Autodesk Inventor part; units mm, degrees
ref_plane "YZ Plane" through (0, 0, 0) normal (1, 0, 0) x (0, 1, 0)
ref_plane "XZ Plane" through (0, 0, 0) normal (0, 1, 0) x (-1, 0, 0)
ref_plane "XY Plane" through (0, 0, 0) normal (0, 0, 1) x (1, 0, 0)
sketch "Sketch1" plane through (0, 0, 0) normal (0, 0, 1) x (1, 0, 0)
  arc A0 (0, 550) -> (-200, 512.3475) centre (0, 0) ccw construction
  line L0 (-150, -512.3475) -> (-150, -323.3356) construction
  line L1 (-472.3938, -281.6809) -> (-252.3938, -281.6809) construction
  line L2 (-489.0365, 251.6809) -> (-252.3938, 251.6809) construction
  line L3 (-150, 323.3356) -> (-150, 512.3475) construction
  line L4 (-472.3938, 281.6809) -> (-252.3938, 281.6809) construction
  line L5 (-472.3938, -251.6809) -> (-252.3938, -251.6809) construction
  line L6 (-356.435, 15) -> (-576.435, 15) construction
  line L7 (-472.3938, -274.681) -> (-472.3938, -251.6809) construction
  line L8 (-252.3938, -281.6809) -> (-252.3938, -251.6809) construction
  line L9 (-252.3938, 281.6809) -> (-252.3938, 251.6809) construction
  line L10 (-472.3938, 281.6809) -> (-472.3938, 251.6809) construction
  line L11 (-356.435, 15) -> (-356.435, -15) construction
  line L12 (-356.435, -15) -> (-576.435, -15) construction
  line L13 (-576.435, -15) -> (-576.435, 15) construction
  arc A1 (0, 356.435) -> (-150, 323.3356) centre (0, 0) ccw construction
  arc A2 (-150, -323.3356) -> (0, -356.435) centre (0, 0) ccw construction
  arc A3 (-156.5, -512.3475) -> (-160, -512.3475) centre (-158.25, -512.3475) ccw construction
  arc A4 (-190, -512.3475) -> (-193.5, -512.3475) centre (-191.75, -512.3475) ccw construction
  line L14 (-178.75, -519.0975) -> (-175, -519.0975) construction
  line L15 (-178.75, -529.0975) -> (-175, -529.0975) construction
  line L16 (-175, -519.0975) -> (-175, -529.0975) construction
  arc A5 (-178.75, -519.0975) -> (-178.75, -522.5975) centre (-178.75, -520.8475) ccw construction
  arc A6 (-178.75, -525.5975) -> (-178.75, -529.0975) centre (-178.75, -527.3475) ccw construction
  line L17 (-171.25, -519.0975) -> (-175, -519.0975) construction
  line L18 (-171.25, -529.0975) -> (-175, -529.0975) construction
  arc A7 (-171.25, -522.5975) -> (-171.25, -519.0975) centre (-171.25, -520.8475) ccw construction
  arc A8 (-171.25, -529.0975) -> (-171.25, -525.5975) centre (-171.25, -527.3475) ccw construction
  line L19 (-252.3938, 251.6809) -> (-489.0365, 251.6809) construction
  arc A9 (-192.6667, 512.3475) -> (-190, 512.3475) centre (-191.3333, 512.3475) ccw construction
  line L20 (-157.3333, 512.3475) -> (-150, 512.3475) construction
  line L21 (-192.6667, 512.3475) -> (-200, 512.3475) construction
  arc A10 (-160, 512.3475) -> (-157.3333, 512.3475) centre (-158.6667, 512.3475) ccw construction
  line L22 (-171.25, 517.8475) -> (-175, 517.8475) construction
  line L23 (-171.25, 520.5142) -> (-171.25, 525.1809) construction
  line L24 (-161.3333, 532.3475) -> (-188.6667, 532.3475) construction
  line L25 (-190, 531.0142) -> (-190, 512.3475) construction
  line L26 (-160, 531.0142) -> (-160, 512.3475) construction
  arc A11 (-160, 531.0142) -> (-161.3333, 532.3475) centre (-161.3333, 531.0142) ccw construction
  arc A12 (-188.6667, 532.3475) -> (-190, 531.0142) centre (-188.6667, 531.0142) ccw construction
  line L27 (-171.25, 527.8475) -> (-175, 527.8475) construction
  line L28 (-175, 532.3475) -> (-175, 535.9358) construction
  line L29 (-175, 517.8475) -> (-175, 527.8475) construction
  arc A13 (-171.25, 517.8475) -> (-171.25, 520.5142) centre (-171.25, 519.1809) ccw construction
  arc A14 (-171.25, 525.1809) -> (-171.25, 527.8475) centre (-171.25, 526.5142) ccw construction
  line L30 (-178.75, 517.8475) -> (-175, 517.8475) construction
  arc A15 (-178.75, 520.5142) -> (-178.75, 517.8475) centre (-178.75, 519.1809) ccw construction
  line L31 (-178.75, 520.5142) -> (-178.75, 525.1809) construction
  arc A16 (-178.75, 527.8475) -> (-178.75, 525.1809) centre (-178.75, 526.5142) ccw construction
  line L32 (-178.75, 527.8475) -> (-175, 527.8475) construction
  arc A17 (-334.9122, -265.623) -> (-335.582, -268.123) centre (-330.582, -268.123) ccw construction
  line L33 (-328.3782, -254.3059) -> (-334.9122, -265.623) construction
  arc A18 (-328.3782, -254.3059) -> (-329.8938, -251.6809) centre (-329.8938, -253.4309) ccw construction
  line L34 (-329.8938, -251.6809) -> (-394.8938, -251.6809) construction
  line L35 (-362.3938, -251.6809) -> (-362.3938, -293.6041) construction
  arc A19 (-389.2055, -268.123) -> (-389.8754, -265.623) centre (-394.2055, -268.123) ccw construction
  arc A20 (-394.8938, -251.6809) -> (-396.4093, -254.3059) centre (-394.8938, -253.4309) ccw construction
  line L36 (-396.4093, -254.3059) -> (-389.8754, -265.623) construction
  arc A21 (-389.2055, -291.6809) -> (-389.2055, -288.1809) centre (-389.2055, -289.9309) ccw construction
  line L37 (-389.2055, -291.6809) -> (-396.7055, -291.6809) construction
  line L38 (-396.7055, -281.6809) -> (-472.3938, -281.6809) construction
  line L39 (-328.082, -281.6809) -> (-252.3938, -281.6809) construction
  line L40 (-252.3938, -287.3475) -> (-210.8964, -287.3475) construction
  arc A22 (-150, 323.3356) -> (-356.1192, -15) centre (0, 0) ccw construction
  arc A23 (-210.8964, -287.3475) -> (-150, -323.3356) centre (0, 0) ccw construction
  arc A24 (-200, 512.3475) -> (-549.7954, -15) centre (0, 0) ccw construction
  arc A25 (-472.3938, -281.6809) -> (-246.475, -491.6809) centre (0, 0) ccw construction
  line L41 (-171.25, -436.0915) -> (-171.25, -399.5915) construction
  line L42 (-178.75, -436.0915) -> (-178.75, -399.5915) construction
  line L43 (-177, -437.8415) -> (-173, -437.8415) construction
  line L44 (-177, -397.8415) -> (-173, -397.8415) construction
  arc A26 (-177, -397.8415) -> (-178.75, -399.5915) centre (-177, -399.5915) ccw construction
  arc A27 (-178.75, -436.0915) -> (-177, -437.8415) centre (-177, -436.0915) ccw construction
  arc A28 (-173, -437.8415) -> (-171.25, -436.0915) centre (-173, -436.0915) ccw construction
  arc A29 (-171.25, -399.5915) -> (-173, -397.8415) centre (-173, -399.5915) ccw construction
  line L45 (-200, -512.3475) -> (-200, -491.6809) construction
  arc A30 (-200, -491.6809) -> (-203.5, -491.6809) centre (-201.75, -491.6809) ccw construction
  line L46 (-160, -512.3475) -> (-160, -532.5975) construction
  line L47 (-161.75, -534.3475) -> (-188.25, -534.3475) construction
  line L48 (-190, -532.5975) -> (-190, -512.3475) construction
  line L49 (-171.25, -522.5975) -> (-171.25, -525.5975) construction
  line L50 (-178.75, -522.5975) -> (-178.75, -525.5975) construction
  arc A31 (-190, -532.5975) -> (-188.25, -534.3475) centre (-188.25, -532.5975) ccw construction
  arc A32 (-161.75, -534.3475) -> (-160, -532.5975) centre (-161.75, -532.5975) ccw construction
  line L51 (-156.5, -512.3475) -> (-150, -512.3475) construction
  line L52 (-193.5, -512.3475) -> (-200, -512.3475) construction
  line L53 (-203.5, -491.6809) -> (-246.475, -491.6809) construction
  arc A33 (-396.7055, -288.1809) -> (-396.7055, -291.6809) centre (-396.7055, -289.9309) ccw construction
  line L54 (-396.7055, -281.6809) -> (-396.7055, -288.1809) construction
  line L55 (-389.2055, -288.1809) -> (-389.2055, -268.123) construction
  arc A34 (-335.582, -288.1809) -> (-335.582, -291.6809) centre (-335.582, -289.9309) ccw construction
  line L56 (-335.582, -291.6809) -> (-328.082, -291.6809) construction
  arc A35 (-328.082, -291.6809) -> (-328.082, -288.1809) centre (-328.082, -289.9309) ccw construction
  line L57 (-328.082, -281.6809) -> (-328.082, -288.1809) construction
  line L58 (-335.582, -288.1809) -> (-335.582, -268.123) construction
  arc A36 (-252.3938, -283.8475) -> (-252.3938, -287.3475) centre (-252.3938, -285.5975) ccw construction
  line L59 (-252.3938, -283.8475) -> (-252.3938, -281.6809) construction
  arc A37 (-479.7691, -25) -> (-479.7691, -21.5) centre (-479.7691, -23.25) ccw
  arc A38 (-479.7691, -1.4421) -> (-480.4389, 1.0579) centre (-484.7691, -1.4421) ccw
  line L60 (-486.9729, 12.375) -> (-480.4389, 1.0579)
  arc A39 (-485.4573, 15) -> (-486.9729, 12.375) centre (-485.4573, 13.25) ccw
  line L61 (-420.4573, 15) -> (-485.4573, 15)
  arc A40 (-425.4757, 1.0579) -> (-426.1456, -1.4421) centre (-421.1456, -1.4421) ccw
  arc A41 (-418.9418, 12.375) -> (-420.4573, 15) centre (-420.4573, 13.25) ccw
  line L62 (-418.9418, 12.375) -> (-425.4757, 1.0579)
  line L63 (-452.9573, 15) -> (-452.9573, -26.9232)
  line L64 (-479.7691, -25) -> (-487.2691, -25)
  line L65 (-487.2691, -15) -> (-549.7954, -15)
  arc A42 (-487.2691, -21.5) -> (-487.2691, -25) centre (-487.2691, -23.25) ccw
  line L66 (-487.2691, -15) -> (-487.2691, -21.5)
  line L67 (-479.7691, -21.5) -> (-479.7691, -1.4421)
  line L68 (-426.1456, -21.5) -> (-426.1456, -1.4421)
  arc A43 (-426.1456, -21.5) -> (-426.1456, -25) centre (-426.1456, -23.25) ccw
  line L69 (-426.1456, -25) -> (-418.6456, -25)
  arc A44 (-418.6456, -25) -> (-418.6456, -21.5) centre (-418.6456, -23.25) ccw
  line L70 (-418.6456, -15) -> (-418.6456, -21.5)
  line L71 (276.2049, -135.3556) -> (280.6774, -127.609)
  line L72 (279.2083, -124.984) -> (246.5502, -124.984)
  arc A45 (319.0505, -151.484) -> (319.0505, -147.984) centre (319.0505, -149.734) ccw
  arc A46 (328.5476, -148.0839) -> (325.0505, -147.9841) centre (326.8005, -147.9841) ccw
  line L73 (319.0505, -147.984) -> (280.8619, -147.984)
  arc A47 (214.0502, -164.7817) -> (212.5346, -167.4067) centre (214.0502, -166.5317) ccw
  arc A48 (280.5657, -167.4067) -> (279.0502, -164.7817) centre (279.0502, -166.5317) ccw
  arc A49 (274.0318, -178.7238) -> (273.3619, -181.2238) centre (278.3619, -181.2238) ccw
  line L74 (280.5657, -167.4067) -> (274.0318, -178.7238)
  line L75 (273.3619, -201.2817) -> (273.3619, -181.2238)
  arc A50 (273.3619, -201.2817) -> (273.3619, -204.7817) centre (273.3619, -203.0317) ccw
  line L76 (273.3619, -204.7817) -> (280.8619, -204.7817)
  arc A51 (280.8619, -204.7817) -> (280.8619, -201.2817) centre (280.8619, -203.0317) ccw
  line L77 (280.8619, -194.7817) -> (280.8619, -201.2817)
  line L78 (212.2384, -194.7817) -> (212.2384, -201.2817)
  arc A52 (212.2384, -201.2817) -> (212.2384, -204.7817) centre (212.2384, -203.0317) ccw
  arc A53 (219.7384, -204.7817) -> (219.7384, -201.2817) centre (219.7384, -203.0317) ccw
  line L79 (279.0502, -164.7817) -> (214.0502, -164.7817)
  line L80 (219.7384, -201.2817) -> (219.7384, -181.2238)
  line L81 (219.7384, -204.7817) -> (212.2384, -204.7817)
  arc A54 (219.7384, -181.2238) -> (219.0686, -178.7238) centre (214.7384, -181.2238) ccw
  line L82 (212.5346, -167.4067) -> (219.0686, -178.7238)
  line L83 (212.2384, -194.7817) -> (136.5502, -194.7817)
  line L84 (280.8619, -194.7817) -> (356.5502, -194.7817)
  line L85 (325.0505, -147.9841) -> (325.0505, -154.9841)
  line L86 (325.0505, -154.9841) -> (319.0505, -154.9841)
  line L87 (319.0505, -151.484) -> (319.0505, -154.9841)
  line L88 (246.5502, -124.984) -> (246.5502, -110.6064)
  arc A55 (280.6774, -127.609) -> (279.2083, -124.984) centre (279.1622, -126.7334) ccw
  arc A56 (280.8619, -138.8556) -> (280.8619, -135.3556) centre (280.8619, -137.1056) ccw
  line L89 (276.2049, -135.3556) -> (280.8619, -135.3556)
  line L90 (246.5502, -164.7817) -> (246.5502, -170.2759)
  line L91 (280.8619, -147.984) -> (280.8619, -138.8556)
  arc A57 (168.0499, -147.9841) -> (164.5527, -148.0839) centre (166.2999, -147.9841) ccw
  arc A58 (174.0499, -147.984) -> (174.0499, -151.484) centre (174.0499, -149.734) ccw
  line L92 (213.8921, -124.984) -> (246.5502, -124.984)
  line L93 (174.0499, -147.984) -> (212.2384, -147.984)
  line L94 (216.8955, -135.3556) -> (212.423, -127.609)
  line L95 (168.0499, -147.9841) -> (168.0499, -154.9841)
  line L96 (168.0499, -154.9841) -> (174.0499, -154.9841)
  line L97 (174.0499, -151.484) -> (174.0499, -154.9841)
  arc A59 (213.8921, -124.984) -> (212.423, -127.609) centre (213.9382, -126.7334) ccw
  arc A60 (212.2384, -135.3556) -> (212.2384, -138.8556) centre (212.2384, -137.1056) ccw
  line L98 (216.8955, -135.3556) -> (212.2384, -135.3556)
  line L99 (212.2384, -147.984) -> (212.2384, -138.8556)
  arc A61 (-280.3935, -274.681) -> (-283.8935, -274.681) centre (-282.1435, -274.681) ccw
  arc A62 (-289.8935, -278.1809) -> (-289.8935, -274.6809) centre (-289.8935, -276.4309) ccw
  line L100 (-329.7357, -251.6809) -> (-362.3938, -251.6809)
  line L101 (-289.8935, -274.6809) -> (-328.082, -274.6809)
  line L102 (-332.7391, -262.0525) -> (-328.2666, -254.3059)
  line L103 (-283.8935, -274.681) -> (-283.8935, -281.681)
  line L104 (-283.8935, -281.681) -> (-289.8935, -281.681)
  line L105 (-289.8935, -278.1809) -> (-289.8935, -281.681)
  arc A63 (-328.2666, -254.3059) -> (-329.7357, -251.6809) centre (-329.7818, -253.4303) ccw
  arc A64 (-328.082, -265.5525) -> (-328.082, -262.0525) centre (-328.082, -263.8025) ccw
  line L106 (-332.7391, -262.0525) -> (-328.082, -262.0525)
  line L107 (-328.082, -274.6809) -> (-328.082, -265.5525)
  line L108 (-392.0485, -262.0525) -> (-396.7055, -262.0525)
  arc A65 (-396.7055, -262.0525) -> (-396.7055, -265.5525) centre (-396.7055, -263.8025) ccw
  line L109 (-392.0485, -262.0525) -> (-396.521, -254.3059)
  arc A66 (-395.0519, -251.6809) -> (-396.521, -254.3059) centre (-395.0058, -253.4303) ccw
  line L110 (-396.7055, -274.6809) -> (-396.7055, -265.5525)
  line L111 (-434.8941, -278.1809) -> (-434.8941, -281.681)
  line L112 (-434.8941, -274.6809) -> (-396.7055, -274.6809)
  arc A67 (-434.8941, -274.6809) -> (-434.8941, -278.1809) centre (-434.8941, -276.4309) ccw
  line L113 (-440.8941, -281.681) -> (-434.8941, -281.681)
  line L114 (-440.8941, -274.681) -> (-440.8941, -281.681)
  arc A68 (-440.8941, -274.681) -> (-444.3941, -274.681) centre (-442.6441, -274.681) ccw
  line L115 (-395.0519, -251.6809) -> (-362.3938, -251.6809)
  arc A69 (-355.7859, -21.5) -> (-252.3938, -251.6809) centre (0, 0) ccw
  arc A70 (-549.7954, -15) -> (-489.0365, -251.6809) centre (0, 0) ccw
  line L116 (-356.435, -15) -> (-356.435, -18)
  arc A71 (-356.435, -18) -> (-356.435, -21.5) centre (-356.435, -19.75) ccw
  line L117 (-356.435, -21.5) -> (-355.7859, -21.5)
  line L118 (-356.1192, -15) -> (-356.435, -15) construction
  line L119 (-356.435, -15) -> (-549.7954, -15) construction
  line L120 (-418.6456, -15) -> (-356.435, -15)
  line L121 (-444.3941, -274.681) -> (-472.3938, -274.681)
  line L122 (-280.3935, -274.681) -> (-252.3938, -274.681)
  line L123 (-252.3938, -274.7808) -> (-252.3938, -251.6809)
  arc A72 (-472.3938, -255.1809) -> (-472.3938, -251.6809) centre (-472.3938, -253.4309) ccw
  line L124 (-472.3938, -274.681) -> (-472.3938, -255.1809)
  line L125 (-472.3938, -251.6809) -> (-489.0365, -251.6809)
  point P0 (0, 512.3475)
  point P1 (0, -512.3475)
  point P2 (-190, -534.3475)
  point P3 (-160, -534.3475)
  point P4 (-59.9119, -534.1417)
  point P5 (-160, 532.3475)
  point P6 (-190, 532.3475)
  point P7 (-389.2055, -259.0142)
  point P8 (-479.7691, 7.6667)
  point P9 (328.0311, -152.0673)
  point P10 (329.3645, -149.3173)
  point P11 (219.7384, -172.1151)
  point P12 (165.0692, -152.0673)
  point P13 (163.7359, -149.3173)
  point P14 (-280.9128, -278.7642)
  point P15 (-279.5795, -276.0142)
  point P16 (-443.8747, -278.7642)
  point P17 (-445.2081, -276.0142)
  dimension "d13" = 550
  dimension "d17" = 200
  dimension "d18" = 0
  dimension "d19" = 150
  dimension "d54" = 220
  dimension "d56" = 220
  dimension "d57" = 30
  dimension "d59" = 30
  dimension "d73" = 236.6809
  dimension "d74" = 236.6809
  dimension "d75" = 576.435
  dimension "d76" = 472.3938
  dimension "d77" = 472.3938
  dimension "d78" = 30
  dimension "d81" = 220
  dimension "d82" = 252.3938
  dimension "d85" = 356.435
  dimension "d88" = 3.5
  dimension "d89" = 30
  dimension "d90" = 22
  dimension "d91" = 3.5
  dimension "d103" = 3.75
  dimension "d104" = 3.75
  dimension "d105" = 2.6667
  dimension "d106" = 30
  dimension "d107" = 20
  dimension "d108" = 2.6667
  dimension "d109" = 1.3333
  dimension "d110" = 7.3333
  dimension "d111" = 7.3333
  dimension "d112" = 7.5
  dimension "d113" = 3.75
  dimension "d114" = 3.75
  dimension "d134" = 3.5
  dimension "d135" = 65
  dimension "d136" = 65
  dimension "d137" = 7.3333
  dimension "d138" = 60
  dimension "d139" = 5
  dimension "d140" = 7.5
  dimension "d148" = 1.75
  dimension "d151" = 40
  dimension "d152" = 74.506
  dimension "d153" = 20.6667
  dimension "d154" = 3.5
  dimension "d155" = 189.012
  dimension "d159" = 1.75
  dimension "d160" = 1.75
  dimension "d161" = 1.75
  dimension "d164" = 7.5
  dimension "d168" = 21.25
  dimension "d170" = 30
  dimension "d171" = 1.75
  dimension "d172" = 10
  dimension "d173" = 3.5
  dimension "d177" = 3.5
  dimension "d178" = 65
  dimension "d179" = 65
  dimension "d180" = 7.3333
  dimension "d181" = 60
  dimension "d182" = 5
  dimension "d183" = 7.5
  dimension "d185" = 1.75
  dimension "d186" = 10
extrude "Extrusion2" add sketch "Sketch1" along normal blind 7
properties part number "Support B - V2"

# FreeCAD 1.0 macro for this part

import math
import FreeCAD as App
import Part
import Sketcher

V = App.Vector
Q = App.Units.Quantity

doc = App.newDocument("Part")
body = doc.addObject("PartDesign::Body", "Body")

# Sketch on XY plane
sketch1 = body.newObject("Sketcher::SketchObject", "Sketch")
sketch1.AttachmentSupport = (doc.getObject("XY_Plane"), [""])
sketch1.MapMode = "FlatFace"
sketch1.addGeometry(Part.ArcOfCircle(Part.Circle(V(-479.7691, -23.25, 0), V(0, 0, 1), 1.75), math.radians(-90), math.radians(90)), False)
sketch1.addGeometry(Part.LineSegment(V(-479.7691, -25, 0), V(-487.2691, -25, 0)), False)
sketch1.addGeometry(Part.ArcOfCircle(Part.Circle(V(-487.2691, -23.25, 0), V(0, 0, 1), 1.75), math.radians(90), math.radians(270)), False)
sketch1.addGeometry(Part.LineSegment(V(-487.2691, -21.5, 0), V(-487.2691, -15, 0)), False)
sketch1.addGeometry(Part.LineSegment(V(-487.2691, -15, 0), V(-549.7954, -15, 0)), False)
sketch1.addGeometry(Part.ArcOfCircle(Part.Circle(V(0, 0, 0), V(0, 0, 1), 549.999964), math.radians(-178.437194), math.radians(-152.767545)), False)
sketch1.addGeometry(Part.LineSegment(V(-489.0365, -251.6809, 0), V(-472.3938, -251.6809, 0)), False)
sketch1.addGeometry(Part.ArcOfCircle(Part.Circle(V(-472.3938, -253.4309, 0), V(0, 0, 1), 1.75), math.radians(-90), math.radians(90)), False)
sketch1.addGeometry(Part.LineSegment(V(-472.3938, -255.1809, 0), V(-472.3938, -274.681, 0)), False)
sketch1.addGeometry(Part.LineSegment(V(-472.3938, -274.681, 0), V(-444.3941, -274.681, 0)), False)
sketch1.addGeometry(Part.ArcOfCircle(Part.Circle(V(-442.6441, -274.681, 0), V(0, 0, 1), 1.75), math.radians(0), math.radians(180)), False)
sketch1.addGeometry(Part.LineSegment(V(-440.8941, -274.681, 0), V(-440.8941, -281.681, 0)), False)
sketch1.addGeometry(Part.LineSegment(V(-440.8941, -281.681, 0), V(-434.8941, -281.681, 0)), False)
sketch1.addGeometry(Part.LineSegment(V(-434.8941, -281.681, 0), V(-434.8941, -278.1809, 0)), False)
sketch1.addGeometry(Part.ArcOfCircle(Part.Circle(V(-434.8941, -276.4309, 0), V(0, 0, 1), 1.75), math.radians(90), math.radians(270)), False)
sketch1.addGeometry(Part.LineSegment(V(-434.8941, -274.6809, 0), V(-396.7055, -274.6809, 0)), False)
sketch1.addGeometry(Part.LineSegment(V(-396.7055, -274.6809, 0), V(-396.7055, -265.5525, 0)), False)
sketch1.addGeometry(Part.ArcOfCircle(Part.Circle(V(-396.7055, -263.8025, 0), V(0, 0, 1), 1.75), math.radians(90), math.radians(270)), False)
sketch1.addGeometry(Part.LineSegment(V(-396.7055, -262.0525, 0), V(-392.0485, -262.0525, 0)), False)
sketch1.addGeometry(Part.LineSegment(V(-392.0485, -262.0525, 0), V(-396.521, -254.3059, 0)), False)
sketch1.addGeometry(Part.ArcOfCircle(Part.Circle(V(-395.0058, -253.4303, 0), V(0, 0, 1), 1.750007), math.radians(91.509503), math.radians(210.022651)), False)
sketch1.addGeometry(Part.LineSegment(V(-395.0519, -251.6809, 0), V(-329.7357, -251.6809, 0)), False)
sketch1.addGeometry(Part.ArcOfCircle(Part.Circle(V(-329.7818, -253.4303, 0), V(0, 0, 1), 1.750002), math.radians(-30.022651), math.radians(88.490497)), False)
sketch1.addGeometry(Part.LineSegment(V(-328.2666, -254.3059, 0), V(-332.7391, -262.0525, 0)), False)
sketch1.addGeometry(Part.LineSegment(V(-332.7391, -262.0525, 0), V(-328.082, -262.0525, 0)), False)
sketch1.addGeometry(Part.ArcOfCircle(Part.Circle(V(-328.082, -263.8025, 0), V(0, 0, 1), 1.75), math.radians(-90), math.radians(90)), False)
sketch1.addGeometry(Part.LineSegment(V(-328.082, -265.5525, 0), V(-328.082, -274.6809, 0)), False)
sketch1.addGeometry(Part.LineSegment(V(-328.082, -274.6809, 0), V(-289.8935, -274.6809, 0)), False)
sketch1.addGeometry(Part.ArcOfCircle(Part.Circle(V(-289.8935, -276.4309, 0), V(0, 0, 1), 1.75), math.radians(-90), math.radians(90)), False)
sketch1.addGeometry(Part.LineSegment(V(-289.8935, -278.1809, 0), V(-289.8935, -281.681, 0)), False)
sketch1.addGeometry(Part.LineSegment(V(-289.8935, -281.681, 0), V(-283.8935, -281.681, 0)), False)
sketch1.addGeometry(Part.LineSegment(V(-283.8935, -281.681, 0), V(-283.8935, -274.681, 0)), False)
sketch1.addGeometry(Part.ArcOfCircle(Part.Circle(V(-282.1435, -274.681, 0), V(0, 0, 1), 1.75), math.radians(0), math.radians(180)), False)
sketch1.addGeometry(Part.LineSegment(V(-280.3935, -274.681, 0), V(-252.3938, -274.681, 0)), False)
sketch1.addGeometry(Part.LineSegment(V(-252.3938, -274.681, 0), V(-252.3938, -251.6809, 0)), False)
sketch1.addGeometry(Part.ArcOfCircle(Part.Circle(V(0, 0, 0), V(0, 0, 1), 356.435001), math.radians(-176.541844), math.radians(-135.081032)), False)
sketch1.addGeometry(Part.LineSegment(V(-355.7859, -21.5, 0), V(-356.435, -21.5, 0)), False)
sketch1.addGeometry(Part.ArcOfCircle(Part.Circle(V(-356.435, -19.75, 0), V(0, 0, 1), 1.75), math.radians(90), math.radians(270)), False)
sketch1.addGeometry(Part.LineSegment(V(-356.435, -18, 0), V(-356.435, -15, 0)), False)
sketch1.addGeometry(Part.LineSegment(V(-356.435, -15, 0), V(-418.6456, -15, 0)), False)
sketch1.addGeometry(Part.LineSegment(V(-418.6456, -15, 0), V(-418.6456, -21.5, 0)), False)
sketch1.addGeometry(Part.ArcOfCircle(Part.Circle(V(-418.6456, -23.25, 0), V(0, 0, 1), 1.75), math.radians(-90), math.radians(90)), False)
sketch1.addGeometry(Part.LineSegment(V(-418.6456, -25, 0), V(-426.1456, -25, 0)), False)
sketch1.addGeometry(Part.ArcOfCircle(Part.Circle(V(-426.1456, -23.25, 0), V(0, 0, 1), 1.75), math.radians(90), math.radians(270)), False)
sketch1.addGeometry(Part.LineSegment(V(-426.1456, -21.5, 0), V(-426.1456, -1.4421, 0)), False)
sketch1.addGeometry(Part.ArcOfCircle(Part.Circle(V(-421.1456, -1.4421, 0), V(0, 0, 1), 4.999977), math.radians(149.999845), math.radians(180)), False)
sketch1.addGeometry(Part.LineSegment(V(-425.4757, 1.0579, 0), V(-418.9418, 12.375, 0)), False)
sketch1.addGeometry(Part.ArcOfCircle(Part.Circle(V(-420.4573, 13.25, 0), V(0, 0, 1), 1.749961), math.radians(-30.000728), math.radians(90)), False)
sketch1.addGeometry(Part.LineSegment(V(-420.4573, 15, 0), V(-485.4573, 15, 0)), False)
sketch1.addGeometry(Part.ArcOfCircle(Part.Circle(V(-485.4573, 13.25, 0), V(0, 0, 1), 1.75), math.radians(90), math.radians(209.999091)), False)
sketch1.addGeometry(Part.LineSegment(V(-486.9729, 12.375, 0), V(-480.4389, 1.0579, 0)), False)
sketch1.addGeometry(Part.ArcOfCircle(Part.Circle(V(-484.7691, -1.4421, 0), V(0, 0, 1), 5), math.radians(0), math.radians(29.999582)), False)
sketch1.addGeometry(Part.LineSegment(V(-479.7691, -1.4421, 0), V(-479.7691, -21.5, 0)), False)
sketch1.addConstraint(Sketcher.Constraint("Tangent", 0, 1, 1, 1))
sketch1.addConstraint(Sketcher.Constraint("Tangent", 1, 2, 2, 2))
sketch1.addConstraint(Sketcher.Constraint("Coincident", 2, 1, 3, 1))
sketch1.addConstraint(Sketcher.Constraint("Coincident", 3, 2, 4, 1))
sketch1.addConstraint(Sketcher.Constraint("Coincident", 4, 2, 5, 1))
sketch1.addConstraint(Sketcher.Constraint("Coincident", 5, 2, 6, 1))
sketch1.addConstraint(Sketcher.Constraint("Tangent", 6, 2, 7, 2))
sketch1.addConstraint(Sketcher.Constraint("Coincident", 7, 1, 8, 1))
sketch1.addConstraint(Sketcher.Constraint("Coincident", 8, 2, 9, 1))
sketch1.addConstraint(Sketcher.Constraint("Coincident", 9, 2, 10, 2))
sketch1.addConstraint(Sketcher.Constraint("Tangent", 10, 1, 11, 1))
sketch1.addConstraint(Sketcher.Constraint("Coincident", 11, 2, 12, 1))
sketch1.addConstraint(Sketcher.Constraint("Coincident", 12, 2, 13, 1))
sketch1.addConstraint(Sketcher.Constraint("Coincident", 13, 2, 14, 2))
sketch1.addConstraint(Sketcher.Constraint("Tangent", 14, 1, 15, 1))
sketch1.addConstraint(Sketcher.Constraint("Coincident", 15, 2, 16, 1))
sketch1.addConstraint(Sketcher.Constraint("Coincident", 16, 2, 17, 2))
sketch1.addConstraint(Sketcher.Constraint("Tangent", 17, 1, 18, 1))
sketch1.addConstraint(Sketcher.Constraint("Coincident", 18, 2, 19, 1))
sketch1.addConstraint(Sketcher.Constraint("Tangent", 19, 2, 20, 2))
sketch1.addConstraint(Sketcher.Constraint("Coincident", 20, 1, 21, 1))
sketch1.addConstraint(Sketcher.Constraint("Coincident", 21, 2, 22, 2))
sketch1.addConstraint(Sketcher.Constraint("Tangent", 22, 1, 23, 1))
sketch1.addConstraint(Sketcher.Constraint("Coincident", 23, 2, 24, 1))
sketch1.addConstraint(Sketcher.Constraint("Tangent", 24, 2, 25, 2))
sketch1.addConstraint(Sketcher.Constraint("Coincident", 25, 1, 26, 1))
sketch1.addConstraint(Sketcher.Constraint("Coincident", 26, 2, 27, 1))
sketch1.addConstraint(Sketcher.Constraint("Tangent", 27, 2, 28, 2))
sketch1.addConstraint(Sketcher.Constraint("Coincident", 28, 1, 29, 1))
sketch1.addConstraint(Sketcher.Constraint("Coincident", 29, 2, 30, 1))
sketch1.addConstraint(Sketcher.Constraint("Coincident", 30, 2, 31, 1))
sketch1.addConstraint(Sketcher.Constraint("Tangent", 31, 2, 32, 2))
sketch1.addConstraint(Sketcher.Constraint("Coincident", 32, 1, 33, 1))
sketch1.addConstraint(Sketcher.Constraint("Coincident", 33, 2, 34, 1))
sketch1.addConstraint(Sketcher.Constraint("Coincident", 34, 2, 35, 2))
sketch1.addConstraint(Sketcher.Constraint("Coincident", 35, 1, 36, 1))
sketch1.addConstraint(Sketcher.Constraint("Tangent", 36, 2, 37, 2))
sketch1.addConstraint(Sketcher.Constraint("Coincident", 37, 1, 38, 1))
sketch1.addConstraint(Sketcher.Constraint("Coincident", 38, 2, 39, 1))
sketch1.addConstraint(Sketcher.Constraint("Coincident", 39, 2, 40, 1))
sketch1.addConstraint(Sketcher.Constraint("Coincident", 40, 2, 41, 2))
sketch1.addConstraint(Sketcher.Constraint("Tangent", 41, 1, 42, 1))
sketch1.addConstraint(Sketcher.Constraint("Tangent", 42, 2, 43, 2))
sketch1.addConstraint(Sketcher.Constraint("Coincident", 43, 1, 44, 1))
sketch1.addConstraint(Sketcher.Constraint("Tangent", 44, 2, 45, 2))
sketch1.addConstraint(Sketcher.Constraint("Tangent", 45, 1, 46, 1))
sketch1.addConstraint(Sketcher.Constraint("Tangent", 46, 2, 47, 1))
sketch1.addConstraint(Sketcher.Constraint("Tangent", 47, 2, 48, 1))
sketch1.addConstraint(Sketcher.Constraint("Tangent", 48, 2, 49, 1))
sketch1.addConstraint(Sketcher.Constraint("Tangent", 49, 2, 50, 1))
sketch1.addConstraint(Sketcher.Constraint("Tangent", 50, 2, 51, 2))
sketch1.addConstraint(Sketcher.Constraint("Tangent", 51, 1, 52, 1))
sketch1.addConstraint(Sketcher.Constraint("Coincident", 52, 2, 0, 2))
sketch1.addConstraint(Sketcher.Constraint("Horizontal", 1))
sketch1.addConstraint(Sketcher.Constraint("Vertical", 3))
sketch1.addConstraint(Sketcher.Constraint("Horizontal", 4))
sketch1.addConstraint(Sketcher.Constraint("Horizontal", 6))
sketch1.addConstraint(Sketcher.Constraint("Vertical", 8))
sketch1.addConstraint(Sketcher.Constraint("Horizontal", 9))
sketch1.addConstraint(Sketcher.Constraint("Vertical", 11))
sketch1.addConstraint(Sketcher.Constraint("Horizontal", 12))
sketch1.addConstraint(Sketcher.Constraint("Vertical", 13))
sketch1.addConstraint(Sketcher.Constraint("Horizontal", 15))
sketch1.addConstraint(Sketcher.Constraint("Vertical", 16))
sketch1.addConstraint(Sketcher.Constraint("Horizontal", 18))
sketch1.addConstraint(Sketcher.Constraint("Horizontal", 21))
sketch1.addConstraint(Sketcher.Constraint("Horizontal", 24))
sketch1.addConstraint(Sketcher.Constraint("Vertical", 26))
sketch1.addConstraint(Sketcher.Constraint("Horizontal", 27))
sketch1.addConstraint(Sketcher.Constraint("Vertical", 29))
sketch1.addConstraint(Sketcher.Constraint("Horizontal", 30))
sketch1.addConstraint(Sketcher.Constraint("Vertical", 31))
sketch1.addConstraint(Sketcher.Constraint("Horizontal", 33))
sketch1.addConstraint(Sketcher.Constraint("Vertical", 34))
sketch1.addConstraint(Sketcher.Constraint("Horizontal", 36))
sketch1.addConstraint(Sketcher.Constraint("Vertical", 38))
sketch1.addConstraint(Sketcher.Constraint("Horizontal", 39))
sketch1.addConstraint(Sketcher.Constraint("Vertical", 40))
sketch1.addConstraint(Sketcher.Constraint("Horizontal", 42))
sketch1.addConstraint(Sketcher.Constraint("Vertical", 44))
sketch1.addConstraint(Sketcher.Constraint("Horizontal", 48))
sketch1.addConstraint(Sketcher.Constraint("Vertical", 52))
sketch1.addConstraint(Sketcher.Constraint("Coincident", 5, 3, -1, 1))
sketch1.addConstraint(Sketcher.Constraint("Coincident", 35, 3, -1, 1))
sketch1.addConstraint(Sketcher.Constraint("Equal", 0, 2))
sketch1.addConstraint(Sketcher.Constraint("Equal", 2, 7))
sketch1.addConstraint(Sketcher.Constraint("Equal", 7, 10))
sketch1.addConstraint(Sketcher.Constraint("Equal", 10, 14))
sketch1.addConstraint(Sketcher.Constraint("Equal", 14, 17))
sketch1.addConstraint(Sketcher.Constraint("Equal", 17, 20))
sketch1.addConstraint(Sketcher.Constraint("Equal", 20, 22))
sketch1.addConstraint(Sketcher.Constraint("Equal", 22, 25))
sketch1.addConstraint(Sketcher.Constraint("Equal", 25, 28))
sketch1.addConstraint(Sketcher.Constraint("Equal", 28, 32))
sketch1.addConstraint(Sketcher.Constraint("Equal", 32, 37))
sketch1.addConstraint(Sketcher.Constraint("Equal", 37, 41))
sketch1.addConstraint(Sketcher.Constraint("Equal", 41, 43))
sketch1.addConstraint(Sketcher.Constraint("Equal", 43, 47))
sketch1.addConstraint(Sketcher.Constraint("Equal", 47, 49))
sketch1.addConstraint(Sketcher.Constraint("Equal", 45, 51))
sketch1.addConstraint(Sketcher.Constraint("Parallel", 23, 46))
sketch1.addConstraint(Sketcher.Constraint("Parallel", 19, 50))
sketch1.addConstraint(Sketcher.Constraint("Horizontal", 20, 3, 22, 3))
sketch1.addConstraint(Sketcher.Constraint("Horizontal", 17, 3, 25, 3))
sketch1.addConstraint(Sketcher.Constraint("Horizontal", 14, 3, 28, 3))
sketch1.addConstraint(Sketcher.Constraint("Horizontal", 10, 3, 32, 3))
sketch1.addConstraint(Sketcher.Constraint("Horizontal", 2, 3, 41, 3))
sketch1.addConstraint(Sketcher.Constraint("Horizontal", 45, 3, 51, 3))
sketch1.addConstraint(Sketcher.Constraint("Horizontal", 32, 3, 8, 2))
sketch1.addConstraint(Sketcher.Constraint("Horizontal", 10, 1, 14, 1))
sketch1.addConstraint(Sketcher.Constraint("Horizontal", 6, 2, 20, 1))
sketch1.addConstraint(Sketcher.Constraint("Horizontal", 19, 2, 22, 1))
sketch1.addConstraint(Sketcher.Constraint("Horizontal", 12, 2, 29, 2))
sketch1.addConstraint(Sketcher.Constraint("Horizontal", 31, 2, 32, 1))
sketch1.addConstraint(Sketcher.Constraint("Horizontal", 21, 2, 34, 2))
sketch1.addConstraint(Sketcher.Constraint("Horizontal", 4, 2, 38, 2))
sketch1.addConstraint(Sketcher.Constraint("Horizontal", 36, 2, 40, 2))
sketch1.addConstraint(Sketcher.Constraint("Vertical", 1, 2, 2, 1))
sketch1.addConstraint(Sketcher.Constraint("Vertical", 6, 2, 7, 1))
sketch1.addConstraint(Sketcher.Constraint("Vertical", 14, 3, 12, 2))
sketch1.addConstraint(Sketcher.Constraint("Vertical", 17, 3, 15, 2))
sketch1.addConstraint(Sketcher.Constraint("Vertical", 24, 2, 25, 1))
sketch1.addConstraint(Sketcher.Constraint("Vertical", 27, 2, 28, 1))
sketch1.addConstraint(Sketcher.Constraint("Vertical", 36, 2, 37, 1))
sketch1.addConstraint(Sketcher.Constraint("Vertical", 41, 3, 39, 2))
sketch1.addConstraint(Sketcher.Constraint("Vertical", 42, 2, 43, 1))
sketch1.addConstraint(Sketcher.Constraint("Vertical", 0, 1, 51, 1))
sketch1.addConstraint(Sketcher.Constraint("Equal", 18, 24))
sketch1.addConstraint(Sketcher.Constraint("Equal", 15, 27))
sketch1.addConstraint(Sketcher.Constraint("Equal", 12, 30))
sketch1.addConstraint(Sketcher.Constraint("Equal", 9, 33))
sketch1.addConstraint(Sketcher.Constraint("Equal", 1, 42))
sketch1.addConstraint(Sketcher.Constraint("Radius", 5, Q("550 mm")))
sketch1.addConstraint(Sketcher.Constraint("Radius", 45, Q("5 mm")))
sketch1.addConstraint(Sketcher.Constraint("DistanceX", 48, 2, 48, 1, Q("65 mm")))
sketch1.addConstraint(Sketcher.Constraint("Angle", 46, Q("60 deg")))
sketch1.addConstraint(Sketcher.Constraint("Radius", 0, Q("1.75 mm")))
sketch1.addConstraint(Sketcher.Constraint("DistanceX", 1, 2, 1, 1, Q("7.5 mm")))
sketch1.addConstraint(Sketcher.Constraint("DistanceY", 13, 1, 13, 2, Q("3.5 mm")))
sketch1.addConstraint(Sketcher.Constraint("Radius", 35, Q("356.435 mm")))
sketch1.addConstraint(Sketcher.Constraint("DistanceX", 12, 1, 12, 2, Q("6 mm")))
sketch1.addConstraint(Sketcher.Constraint("DistanceY", 34, 1, 34, 2, Q("23 mm")))
sketch1.addConstraint(Sketcher.Constraint("DistanceY", 38, 1, 38, 2, Q("3 mm")))
sketch1.addConstraint(Sketcher.Constraint("DistanceX", 37, 3, -1, 1, Q("356.435 mm")))
sketch1.addConstraint(Sketcher.Constraint("DistanceY", 0, 1, -1, 1, Q("25 mm")))
sketch1.addConstraint(Sketcher.Constraint("DistanceY", -1, 1, 47, 2, Q("15 mm")))
sketch1.addConstraint(Sketcher.Constraint("DistanceX", 7, 3, -1, 1, Q("472.3938 mm")))
sketch1.addConstraint(Sketcher.Constraint("DistanceX", 33, 2, -1, 1, Q("252.3938 mm")))
sketch1.addConstraint(Sketcher.Constraint("DistanceX", 18, 1, 18, 2, Q("4.657 mm")))
sketch1.addConstraint(Sketcher.Constraint("DistanceY", 44, 1, 44, 2, Q("20.058 mm")))
sketch1.addConstraint(Sketcher.Constraint("Distance", 19, Q("8.945 mm")))
sketch1.addConstraint(Sketcher.Constraint("DistanceX", 4, 2, 4, 1, Q("62.5263 mm")))
sketch1.addConstraint(Sketcher.Constraint("DistanceX", 9, 1, 9, 2, Q("27.9997 mm")))
sketch1.addConstraint(Sketcher.Constraint("DistanceX", 15, 1, 15, 2, Q("38.1886 mm")))
sketch1.addConstraint(Sketcher.Constraint("DistanceX", 21, 1, 21, 2, Q("65.3162 mm")))
pad1 = body.newObject("PartDesign::Pad", "Pad")
pad1.Profile = sketch1
pad1.Length = 7

doc.recompute()
